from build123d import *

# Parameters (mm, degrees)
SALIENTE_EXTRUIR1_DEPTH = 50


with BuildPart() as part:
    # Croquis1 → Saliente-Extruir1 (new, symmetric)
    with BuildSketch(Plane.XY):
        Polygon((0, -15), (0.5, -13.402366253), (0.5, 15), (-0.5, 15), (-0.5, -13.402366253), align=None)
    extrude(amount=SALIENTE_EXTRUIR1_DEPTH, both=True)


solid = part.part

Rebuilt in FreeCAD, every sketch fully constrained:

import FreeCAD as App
import Part
import Sketcher
from FreeCAD import Vector
Q = App.Units.Quantity

doc = App.newDocument("Part")
body = doc.addObject("PartDesign::Body", "Body")

# Sketch on XY plane
sketch1 = doc.addObject("Sketcher::SketchObject", "Sketch")
body.addObject(sketch1)
sketch1.AttachmentSupport = (doc.XY_Plane, [""])
sketch1.MapMode = "FlatFace"
sketch1.addGeometry([
    Part.LineSegment(Vector(0, -15, 0), Vector(0.5, -13.4, 0)),  # 0
    Part.LineSegment(Vector(0.5, -13.4, 0), Vector(0.5, 15, 0)),  # 1
    Part.LineSegment(Vector(0.5, 15, 0), Vector(-0.5, 15, 0)),  # 2
    Part.LineSegment(Vector(-0.5, 15, 0), Vector(-0.5, -13.4, 0)),  # 3
    Part.LineSegment(Vector(-0.5, -13.4, 0), Vector(0, -15, 0)),  # 4
], False)
sketch1.addConstraint([
    Sketcher.Constraint("Coincident", 0, 2, 1, 1),
    Sketcher.Constraint("Coincident", 1, 2, 2, 1),
    Sketcher.Constraint("Coincident", 2, 2, 3, 1),
    Sketcher.Constraint("Coincident", 3, 2, 4, 1),
    Sketcher.Constraint("Coincident", 4, 2, 0, 1),
    Sketcher.Constraint("Vertical", 1),
    Sketcher.Constraint("Horizontal", 2),
    Sketcher.Constraint("Vertical", 3),
    Sketcher.Constraint("Symmetric", 0, 2, 3, 2, -2),
    Sketcher.Constraint("PointOnObject", 4, 2, -2),
    Sketcher.Constraint("DistanceX", 2, 2, 2, 1, Q("1 mm")),
    Sketcher.Constraint("DistanceY", -1, 1, 1, 2, Q("15 mm")),
    Sketcher.Constraint("DistanceY", 4, 2, -1, 1, Q("15 mm")),
    Sketcher.Constraint("DistanceY", 1, 1, 1, 2, Q("28.402366 mm")),
])
pad1 = doc.addObject("PartDesign::Pad", "Pad")
body.addObject(pad1)
pad1.Profile = sketch1
pad1.Length = 100
pad1.Midplane = True

doc.recompute()
